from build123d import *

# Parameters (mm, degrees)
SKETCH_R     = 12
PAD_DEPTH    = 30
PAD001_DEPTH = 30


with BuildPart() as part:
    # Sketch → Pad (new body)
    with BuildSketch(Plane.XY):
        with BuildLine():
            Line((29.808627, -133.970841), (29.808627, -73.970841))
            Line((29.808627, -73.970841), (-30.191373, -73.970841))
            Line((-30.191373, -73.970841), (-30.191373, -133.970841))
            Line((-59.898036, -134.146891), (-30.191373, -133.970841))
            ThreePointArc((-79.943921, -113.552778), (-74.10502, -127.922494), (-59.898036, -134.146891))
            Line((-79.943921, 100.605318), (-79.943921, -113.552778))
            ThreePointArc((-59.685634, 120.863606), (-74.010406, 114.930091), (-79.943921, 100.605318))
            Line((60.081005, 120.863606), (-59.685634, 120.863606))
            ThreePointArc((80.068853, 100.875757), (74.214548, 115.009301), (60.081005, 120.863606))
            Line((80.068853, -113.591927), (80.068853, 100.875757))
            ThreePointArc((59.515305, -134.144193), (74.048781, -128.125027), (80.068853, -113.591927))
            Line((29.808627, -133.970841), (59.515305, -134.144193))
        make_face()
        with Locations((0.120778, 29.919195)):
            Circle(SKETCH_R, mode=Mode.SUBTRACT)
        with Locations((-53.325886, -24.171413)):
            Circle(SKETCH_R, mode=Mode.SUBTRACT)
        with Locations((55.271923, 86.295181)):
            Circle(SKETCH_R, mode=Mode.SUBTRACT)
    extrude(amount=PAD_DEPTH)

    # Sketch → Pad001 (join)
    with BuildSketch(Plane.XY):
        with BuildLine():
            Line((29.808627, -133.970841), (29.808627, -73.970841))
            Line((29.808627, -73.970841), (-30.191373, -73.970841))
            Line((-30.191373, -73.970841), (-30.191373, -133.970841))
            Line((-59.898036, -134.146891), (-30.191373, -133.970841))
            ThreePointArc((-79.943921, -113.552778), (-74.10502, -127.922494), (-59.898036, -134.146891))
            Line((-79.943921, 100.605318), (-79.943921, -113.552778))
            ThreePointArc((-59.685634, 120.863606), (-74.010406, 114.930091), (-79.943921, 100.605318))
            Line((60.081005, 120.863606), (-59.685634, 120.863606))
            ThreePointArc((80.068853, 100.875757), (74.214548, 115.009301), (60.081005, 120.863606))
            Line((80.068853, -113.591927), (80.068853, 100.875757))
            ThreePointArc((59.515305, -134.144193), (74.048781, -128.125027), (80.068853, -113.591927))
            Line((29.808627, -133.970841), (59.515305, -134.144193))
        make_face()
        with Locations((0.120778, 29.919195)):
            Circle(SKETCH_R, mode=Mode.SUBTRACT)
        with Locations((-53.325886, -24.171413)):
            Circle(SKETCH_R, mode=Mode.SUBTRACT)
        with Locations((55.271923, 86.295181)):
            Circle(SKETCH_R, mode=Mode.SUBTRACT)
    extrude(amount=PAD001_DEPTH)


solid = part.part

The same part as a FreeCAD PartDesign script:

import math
import FreeCAD as App
import Part
import Sketcher

doc = App.newDocument("Part")
params = doc.addObject("Spreadsheet::Sheet", "Params")
for row, (alias, value) in enumerate([
    ("sketch1_diameter", "24 mm"),
    ("sketch1_diameter2", "24 mm"),
    ("sketch1_diameter3", "24 mm"),
    ("sketch1_width", "60 mm"),
    ("sketch1_height", "60 mm"),
    ("pad1_length", "30 mm"),
    ("sketch2_diameter", "24 mm"),
    ("sketch2_diameter2", "24 mm"),
    ("sketch2_diameter3", "24 mm"),
    ("sketch2_width", "60 mm"),
    ("sketch2_height", "60 mm"),
    ("pad2_length", "30 mm"),
], start=1):
    params.set(f"A{row}", alias)
    params.set(f"B{row}", "=" + value)
    params.setAlias(f"B{row}", alias)

body = doc.addObject("PartDesign::Body", "Body")

sketch1 = body.newObject("Sketcher::SketchObject", "Sketch")
sketch1.AttachmentSupport = (doc.getObject("XY_Plane"), [""])
sketch1.MapMode = "FlatFace"
sketch1.addGeometry([
    Part.LineSegment(App.Vector(29.808627, -73.970841, 0), App.Vector(29.808627, -133.970841, 0)),
    Part.LineSegment(App.Vector(29.808627, -133.970841, 0), App.Vector(59.515305, -134.144193, 0)),
    Part.ArcOfCircle(Part.Circle(App.Vector(59.516588, -113.591928, 0), App.Vector(0, 0, 1), 20.552265), math.radians(-90.003577), math.radians(0.000003)),
    Part.LineSegment(App.Vector(80.068853, -113.591927, 0), App.Vector(80.068853, 100.875757, 0)),
    Part.ArcOfCircle(Part.Circle(App.Vector(60.081005, 100.875758, 0), App.Vector(0, 0, 1), 19.987848), math.radians(-0.000004), math.radians(90.000001)),
    Part.LineSegment(App.Vector(60.081005, 120.863606, 0), App.Vector(-59.685634, 120.863606, 0)),
    Part.ArcOfCircle(Part.Circle(App.Vector(-59.685634, 100.605319, 0), App.Vector(0, 0, 1), 20.258287), math.radians(90.000001), math.radians(180.000002)),
    Part.LineSegment(App.Vector(-79.943921, 100.605318, 0), App.Vector(-79.943921, -113.552778, 0)),
    Part.ArcOfCircle(Part.Circle(App.Vector(-59.34231, -113.552777, 0), App.Vector(0, 0, 1), 20.601611), math.radians(-179.999997), math.radians(-91.545733)),
    Part.LineSegment(App.Vector(-59.898036, -134.146891, 0), App.Vector(-30.191373, -133.970841, 0)),
    Part.LineSegment(App.Vector(-30.191373, -133.970841, 0), App.Vector(-30.191373, -73.970841, 0)),
    Part.LineSegment(App.Vector(-30.191373, -73.970841, 0), App.Vector(29.808627, -73.970841, 0)),
    Part.Circle(App.Vector(-53.325886, -24.171413, 0), App.Vector(0, 0, 1), 12),
    Part.Circle(App.Vector(0.120778, 29.919195, 0), App.Vector(0, 0, 1), 12),
    Part.Circle(App.Vector(55.271923, 86.295181, 0), App.Vector(0, 0, 1), 12),
], False)
sketch1.addConstraint([
    Sketcher.Constraint("Coincident", 0, 2, 1, 1),
    Sketcher.Constraint("Coincident", 1, 2, 2, 1),
    Sketcher.Constraint("Coincident", 2, 2, 3, 1),
    Sketcher.Constraint("Coincident", 3, 2, 4, 1),
    Sketcher.Constraint("Coincident", 4, 2, 5, 1),
    Sketcher.Constraint("Coincident", 5, 2, 6, 1),
    Sketcher.Constraint("Coincident", 6, 2, 7, 1),
    Sketcher.Constraint("Coincident", 7, 2, 8, 1),
    Sketcher.Constraint("Coincident", 8, 2, 9, 1),
    Sketcher.Constraint("Coincident", 9, 2, 10, 1),
    Sketcher.Constraint("Coincident", 10, 2, 11, 1),
    Sketcher.Constraint("Coincident", 11, 2, 0, 1),
    Sketcher.Constraint("Vertical", 0),
    Sketcher.Constraint("Vertical", 3),
    Sketcher.Constraint("Horizontal", 5),
    Sketcher.Constraint("Vertical", 7),
    Sketcher.Constraint("Vertical", 10),
    Sketcher.Constraint("Horizontal", 11),
    Sketcher.Constraint("Diameter", 12, 24.0),
    Sketcher.Constraint("Diameter", 13, 24.0),
    Sketcher.Constraint("Diameter", 14, 24.0),
    Sketcher.Constraint("DistanceX", 11, 1, 11, 2, 60.0),
    Sketcher.Constraint("DistanceY", 0, 2, 0, 1, 60.0),
    Sketcher.Constraint("DistanceY", 10, 1, 10, 2, 60.0),
    Sketcher.Constraint("Radius", 8, 20.601611),
    Sketcher.Constraint("Radius", 2, 20.552265),
    Sketcher.Constraint("Radius", 4, 19.987848),
    Sketcher.Constraint("Radius", 6, 20.258287),
    Sketcher.Constraint("DistanceX", 5, 2, 5, 1, 119.766639),
    Sketcher.Constraint("DistanceX", 8, 3, 2, 3, 118.858899),
    Sketcher.Constraint("DistanceX", 6, 2, 13, 3, 80.064699),
    Sketcher.Constraint("DistanceY", 8, 2, 1, 2, 0.002698),
    Sketcher.Constraint("DistanceY", 3, 1, 3, 2, 214.467684),
    Sketcher.Constraint("DistanceY", 7, 2, 7, 1, 214.158096),
    Sketcher.Constraint("DistanceX", -1, 1, 2, 3, 59.516588),
    Sketcher.Constraint("DistanceY", 2, 3, -1, 1, 113.591928),
    Sketcher.Constraint("DistanceY", -1, 1, 4, 3, 100.875758),
    Sketcher.Constraint("DistanceY", -1, 1, 14, 3, 86.295181),
    Sketcher.Constraint("DistanceY", 0, 2, -1, 1, 133.970841),
    Sketcher.Constraint("DistanceY", 7, 2, -1, 1, 113.552778),
    Sketcher.Constraint("DistanceY", 2, 3, 8, 3, 0.039151),
    Sketcher.Constraint("DistanceY", 12, 3, 6, 3, 124.776732),
    Sketcher.Constraint("DistanceX", 12, 3, 4, 3, 113.406891),
    Sketcher.Constraint("DistanceY", 12, 3, 13, 3, 54.090608),
    Sketcher.Constraint("DistanceX", 12, 3, 14, 3, 108.597809),
    Sketcher.Constraint("DistanceX", 0, 2, 2, 3, 29.707961),
    Sketcher.Constraint("DistanceX", 12, 3, 1, 2, 112.841191),
    Sketcher.Constraint("DistanceY", 2, 2, 8, 3, 0.03915),
    Sketcher.Constraint("DistanceX", 4, 2, 3, 2, 19.987848),
])
sketch1.setExpression("Constraints[18]", "Params.sketch1_diameter")
sketch1.setExpression("Constraints[19]", "Params.sketch1_diameter2")
sketch1.setExpression("Constraints[20]", "Params.sketch1_diameter3")
sketch1.setExpression("Constraints[21]", "Params.sketch1_width")
sketch1.setExpression("Constraints[22]", "Params.sketch1_height")
pad1 = body.newObject("PartDesign::Pad", "Pad")
pad1.Profile = sketch1
pad1.setExpression("Length", "Params.pad1_length")

sketch2 = body.newObject("Sketcher::SketchObject", "Sketch001")
sketch2.AttachmentSupport = (doc.getObject("XY_Plane"), [""])
sketch2.MapMode = "FlatFace"
sketch2.addGeometry([
    Part.LineSegment(App.Vector(29.808627, -73.970841, 0), App.Vector(29.808627, -133.970841, 0)),
    Part.LineSegment(App.Vector(29.808627, -133.970841, 0), App.Vector(59.515305, -134.144193, 0)),
    Part.ArcOfCircle(Part.Circle(App.Vector(59.516588, -113.591928, 0), App.Vector(0, 0, 1), 20.552265), math.radians(-90.003577), math.radians(0.000003)),
    Part.LineSegment(App.Vector(80.068853, -113.591927, 0), App.Vector(80.068853, 100.875757, 0)),
    Part.ArcOfCircle(Part.Circle(App.Vector(60.081005, 100.875758, 0), App.Vector(0, 0, 1), 19.987848), math.radians(-0.000004), math.radians(90.000001)),
    Part.LineSegment(App.Vector(60.081005, 120.863606, 0), App.Vector(-59.685634, 120.863606, 0)),
    Part.ArcOfCircle(Part.Circle(App.Vector(-59.685634, 100.605319, 0), App.Vector(0, 0, 1), 20.258287), math.radians(90.000001), math.radians(180.000002)),
    Part.LineSegment(App.Vector(-79.943921, 100.605318, 0), App.Vector(-79.943921, -113.552778, 0)),
    Part.ArcOfCircle(Part.Circle(App.Vector(-59.34231, -113.552777, 0), App.Vector(0, 0, 1), 20.601611), math.radians(-179.999997), math.radians(-91.545733)),
    Part.LineSegment(App.Vector(-59.898036, -134.146891, 0), App.Vector(-30.191373, -133.970841, 0)),
    Part.LineSegment(App.Vector(-30.191373, -133.970841, 0), App.Vector(-30.191373, -73.970841, 0)),
    Part.LineSegment(App.Vector(-30.191373, -73.970841, 0), App.Vector(29.808627, -73.970841, 0)),
    Part.Circle(App.Vector(-53.325886, -24.171413, 0), App.Vector(0, 0, 1), 12),
    Part.Circle(App.Vector(0.120778, 29.919195, 0), App.Vector(0, 0, 1), 12),
    Part.Circle(App.Vector(55.271923, 86.295181, 0), App.Vector(0, 0, 1), 12),
], False)
sketch2.addConstraint([
    Sketcher.Constraint("Coincident", 0, 2, 1, 1),
    Sketcher.Constraint("Coincident", 1, 2, 2, 1),
    Sketcher.Constraint("Coincident", 2, 2, 3, 1),
    Sketcher.Constraint("Coincident", 3, 2, 4, 1),
    Sketcher.Constraint("Coincident", 4, 2, 5, 1),
    Sketcher.Constraint("Coincident", 5, 2, 6, 1),
    Sketcher.Constraint("Coincident", 6, 2, 7, 1),
    Sketcher.Constraint("Coincident", 7, 2, 8, 1),
    Sketcher.Constraint("Coincident", 8, 2, 9, 1),
    Sketcher.Constraint("Coincident", 9, 2, 10, 1),
    Sketcher.Constraint("Coincident", 10, 2, 11, 1),
    Sketcher.Constraint("Coincident", 11, 2, 0, 1),
    Sketcher.Constraint("Vertical", 0),
    Sketcher.Constraint("Vertical", 3),
    Sketcher.Constraint("Horizontal", 5),
    Sketcher.Constraint("Vertical", 7),
    Sketcher.Constraint("Vertical", 10),
    Sketcher.Constraint("Horizontal", 11),
    Sketcher.Constraint("Diameter", 12, 24.0),
    Sketcher.Constraint("Diameter", 13, 24.0),
    Sketcher.Constraint("Diameter", 14, 24.0),
    Sketcher.Constraint("DistanceX", 11, 1, 11, 2, 60.0),
    Sketcher.Constraint("DistanceY", 0, 2, 0, 1, 60.0),
    Sketcher.Constraint("DistanceY", 10, 1, 10, 2, 60.0),
    Sketcher.Constraint("Radius", 8, 20.601611),
    Sketcher.Constraint("Radius", 2, 20.552265),
    Sketcher.Constraint("Radius", 4, 19.987848),
    Sketcher.Constraint("Radius", 6, 20.258287),
    Sketcher.Constraint("DistanceX", 5, 2, 5, 1, 119.766639),
    Sketcher.Constraint("DistanceX", 8, 3, 2, 3, 118.858899),
    Sketcher.Constraint("DistanceX", 6, 2, 13, 3, 80.064699),
    Sketcher.Constraint("DistanceY", 8, 2, 1, 2, 0.002698),
    Sketcher.Constraint("DistanceY", 3, 1, 3, 2, 214.467684),
    Sketcher.Constraint("DistanceY", 7, 2, 7, 1, 214.158096),
    Sketcher.Constraint("DistanceX", -1, 1, 2, 3, 59.516588),
    Sketcher.Constraint("DistanceY", 2, 3, -1, 1, 113.591928),
    Sketcher.Constraint("DistanceY", -1, 1, 4, 3, 100.875758),
    Sketcher.Constraint("DistanceY", -1, 1, 14, 3, 86.295181),
    Sketcher.Constraint("DistanceY", 0, 2, -1, 1, 133.970841),
    Sketcher.Constraint("DistanceY", 7, 2, -1, 1, 113.552778),
    Sketcher.Constraint("DistanceY", 2, 3, 8, 3, 0.039151),
    Sketcher.Constraint("DistanceY", 12, 3, 6, 3, 124.776732),
    Sketcher.Constraint("DistanceX", 12, 3, 4, 3, 113.406891),
    Sketcher.Constraint("DistanceY", 12, 3, 13, 3, 54.090608),
    Sketcher.Constraint("DistanceX", 12, 3, 14, 3, 108.597809),
    Sketcher.Constraint("DistanceX", 0, 2, 2, 3, 29.707961),
    Sketcher.Constraint("DistanceX", 12, 3, 1, 2, 112.841191),
    Sketcher.Constraint("DistanceY", 2, 2, 8, 3, 0.03915),
    Sketcher.Constraint("DistanceX", 4, 2, 3, 2, 19.987848),
])
sketch2.setExpression("Constraints[18]", "Params.sketch2_diameter")
sketch2.setExpression("Constraints[19]", "Params.sketch2_diameter2")
sketch2.setExpression("Constraints[20]", "Params.sketch2_diameter3")
sketch2.setExpression("Constraints[21]", "Params.sketch2_width")
sketch2.setExpression("Constraints[22]", "Params.sketch2_height")
pad2 = body.newObject("PartDesign::Pad", "Pad001")
pad2.Profile = sketch2
pad2.setExpression("Length", "Params.pad2_length")

doc.recompute()
